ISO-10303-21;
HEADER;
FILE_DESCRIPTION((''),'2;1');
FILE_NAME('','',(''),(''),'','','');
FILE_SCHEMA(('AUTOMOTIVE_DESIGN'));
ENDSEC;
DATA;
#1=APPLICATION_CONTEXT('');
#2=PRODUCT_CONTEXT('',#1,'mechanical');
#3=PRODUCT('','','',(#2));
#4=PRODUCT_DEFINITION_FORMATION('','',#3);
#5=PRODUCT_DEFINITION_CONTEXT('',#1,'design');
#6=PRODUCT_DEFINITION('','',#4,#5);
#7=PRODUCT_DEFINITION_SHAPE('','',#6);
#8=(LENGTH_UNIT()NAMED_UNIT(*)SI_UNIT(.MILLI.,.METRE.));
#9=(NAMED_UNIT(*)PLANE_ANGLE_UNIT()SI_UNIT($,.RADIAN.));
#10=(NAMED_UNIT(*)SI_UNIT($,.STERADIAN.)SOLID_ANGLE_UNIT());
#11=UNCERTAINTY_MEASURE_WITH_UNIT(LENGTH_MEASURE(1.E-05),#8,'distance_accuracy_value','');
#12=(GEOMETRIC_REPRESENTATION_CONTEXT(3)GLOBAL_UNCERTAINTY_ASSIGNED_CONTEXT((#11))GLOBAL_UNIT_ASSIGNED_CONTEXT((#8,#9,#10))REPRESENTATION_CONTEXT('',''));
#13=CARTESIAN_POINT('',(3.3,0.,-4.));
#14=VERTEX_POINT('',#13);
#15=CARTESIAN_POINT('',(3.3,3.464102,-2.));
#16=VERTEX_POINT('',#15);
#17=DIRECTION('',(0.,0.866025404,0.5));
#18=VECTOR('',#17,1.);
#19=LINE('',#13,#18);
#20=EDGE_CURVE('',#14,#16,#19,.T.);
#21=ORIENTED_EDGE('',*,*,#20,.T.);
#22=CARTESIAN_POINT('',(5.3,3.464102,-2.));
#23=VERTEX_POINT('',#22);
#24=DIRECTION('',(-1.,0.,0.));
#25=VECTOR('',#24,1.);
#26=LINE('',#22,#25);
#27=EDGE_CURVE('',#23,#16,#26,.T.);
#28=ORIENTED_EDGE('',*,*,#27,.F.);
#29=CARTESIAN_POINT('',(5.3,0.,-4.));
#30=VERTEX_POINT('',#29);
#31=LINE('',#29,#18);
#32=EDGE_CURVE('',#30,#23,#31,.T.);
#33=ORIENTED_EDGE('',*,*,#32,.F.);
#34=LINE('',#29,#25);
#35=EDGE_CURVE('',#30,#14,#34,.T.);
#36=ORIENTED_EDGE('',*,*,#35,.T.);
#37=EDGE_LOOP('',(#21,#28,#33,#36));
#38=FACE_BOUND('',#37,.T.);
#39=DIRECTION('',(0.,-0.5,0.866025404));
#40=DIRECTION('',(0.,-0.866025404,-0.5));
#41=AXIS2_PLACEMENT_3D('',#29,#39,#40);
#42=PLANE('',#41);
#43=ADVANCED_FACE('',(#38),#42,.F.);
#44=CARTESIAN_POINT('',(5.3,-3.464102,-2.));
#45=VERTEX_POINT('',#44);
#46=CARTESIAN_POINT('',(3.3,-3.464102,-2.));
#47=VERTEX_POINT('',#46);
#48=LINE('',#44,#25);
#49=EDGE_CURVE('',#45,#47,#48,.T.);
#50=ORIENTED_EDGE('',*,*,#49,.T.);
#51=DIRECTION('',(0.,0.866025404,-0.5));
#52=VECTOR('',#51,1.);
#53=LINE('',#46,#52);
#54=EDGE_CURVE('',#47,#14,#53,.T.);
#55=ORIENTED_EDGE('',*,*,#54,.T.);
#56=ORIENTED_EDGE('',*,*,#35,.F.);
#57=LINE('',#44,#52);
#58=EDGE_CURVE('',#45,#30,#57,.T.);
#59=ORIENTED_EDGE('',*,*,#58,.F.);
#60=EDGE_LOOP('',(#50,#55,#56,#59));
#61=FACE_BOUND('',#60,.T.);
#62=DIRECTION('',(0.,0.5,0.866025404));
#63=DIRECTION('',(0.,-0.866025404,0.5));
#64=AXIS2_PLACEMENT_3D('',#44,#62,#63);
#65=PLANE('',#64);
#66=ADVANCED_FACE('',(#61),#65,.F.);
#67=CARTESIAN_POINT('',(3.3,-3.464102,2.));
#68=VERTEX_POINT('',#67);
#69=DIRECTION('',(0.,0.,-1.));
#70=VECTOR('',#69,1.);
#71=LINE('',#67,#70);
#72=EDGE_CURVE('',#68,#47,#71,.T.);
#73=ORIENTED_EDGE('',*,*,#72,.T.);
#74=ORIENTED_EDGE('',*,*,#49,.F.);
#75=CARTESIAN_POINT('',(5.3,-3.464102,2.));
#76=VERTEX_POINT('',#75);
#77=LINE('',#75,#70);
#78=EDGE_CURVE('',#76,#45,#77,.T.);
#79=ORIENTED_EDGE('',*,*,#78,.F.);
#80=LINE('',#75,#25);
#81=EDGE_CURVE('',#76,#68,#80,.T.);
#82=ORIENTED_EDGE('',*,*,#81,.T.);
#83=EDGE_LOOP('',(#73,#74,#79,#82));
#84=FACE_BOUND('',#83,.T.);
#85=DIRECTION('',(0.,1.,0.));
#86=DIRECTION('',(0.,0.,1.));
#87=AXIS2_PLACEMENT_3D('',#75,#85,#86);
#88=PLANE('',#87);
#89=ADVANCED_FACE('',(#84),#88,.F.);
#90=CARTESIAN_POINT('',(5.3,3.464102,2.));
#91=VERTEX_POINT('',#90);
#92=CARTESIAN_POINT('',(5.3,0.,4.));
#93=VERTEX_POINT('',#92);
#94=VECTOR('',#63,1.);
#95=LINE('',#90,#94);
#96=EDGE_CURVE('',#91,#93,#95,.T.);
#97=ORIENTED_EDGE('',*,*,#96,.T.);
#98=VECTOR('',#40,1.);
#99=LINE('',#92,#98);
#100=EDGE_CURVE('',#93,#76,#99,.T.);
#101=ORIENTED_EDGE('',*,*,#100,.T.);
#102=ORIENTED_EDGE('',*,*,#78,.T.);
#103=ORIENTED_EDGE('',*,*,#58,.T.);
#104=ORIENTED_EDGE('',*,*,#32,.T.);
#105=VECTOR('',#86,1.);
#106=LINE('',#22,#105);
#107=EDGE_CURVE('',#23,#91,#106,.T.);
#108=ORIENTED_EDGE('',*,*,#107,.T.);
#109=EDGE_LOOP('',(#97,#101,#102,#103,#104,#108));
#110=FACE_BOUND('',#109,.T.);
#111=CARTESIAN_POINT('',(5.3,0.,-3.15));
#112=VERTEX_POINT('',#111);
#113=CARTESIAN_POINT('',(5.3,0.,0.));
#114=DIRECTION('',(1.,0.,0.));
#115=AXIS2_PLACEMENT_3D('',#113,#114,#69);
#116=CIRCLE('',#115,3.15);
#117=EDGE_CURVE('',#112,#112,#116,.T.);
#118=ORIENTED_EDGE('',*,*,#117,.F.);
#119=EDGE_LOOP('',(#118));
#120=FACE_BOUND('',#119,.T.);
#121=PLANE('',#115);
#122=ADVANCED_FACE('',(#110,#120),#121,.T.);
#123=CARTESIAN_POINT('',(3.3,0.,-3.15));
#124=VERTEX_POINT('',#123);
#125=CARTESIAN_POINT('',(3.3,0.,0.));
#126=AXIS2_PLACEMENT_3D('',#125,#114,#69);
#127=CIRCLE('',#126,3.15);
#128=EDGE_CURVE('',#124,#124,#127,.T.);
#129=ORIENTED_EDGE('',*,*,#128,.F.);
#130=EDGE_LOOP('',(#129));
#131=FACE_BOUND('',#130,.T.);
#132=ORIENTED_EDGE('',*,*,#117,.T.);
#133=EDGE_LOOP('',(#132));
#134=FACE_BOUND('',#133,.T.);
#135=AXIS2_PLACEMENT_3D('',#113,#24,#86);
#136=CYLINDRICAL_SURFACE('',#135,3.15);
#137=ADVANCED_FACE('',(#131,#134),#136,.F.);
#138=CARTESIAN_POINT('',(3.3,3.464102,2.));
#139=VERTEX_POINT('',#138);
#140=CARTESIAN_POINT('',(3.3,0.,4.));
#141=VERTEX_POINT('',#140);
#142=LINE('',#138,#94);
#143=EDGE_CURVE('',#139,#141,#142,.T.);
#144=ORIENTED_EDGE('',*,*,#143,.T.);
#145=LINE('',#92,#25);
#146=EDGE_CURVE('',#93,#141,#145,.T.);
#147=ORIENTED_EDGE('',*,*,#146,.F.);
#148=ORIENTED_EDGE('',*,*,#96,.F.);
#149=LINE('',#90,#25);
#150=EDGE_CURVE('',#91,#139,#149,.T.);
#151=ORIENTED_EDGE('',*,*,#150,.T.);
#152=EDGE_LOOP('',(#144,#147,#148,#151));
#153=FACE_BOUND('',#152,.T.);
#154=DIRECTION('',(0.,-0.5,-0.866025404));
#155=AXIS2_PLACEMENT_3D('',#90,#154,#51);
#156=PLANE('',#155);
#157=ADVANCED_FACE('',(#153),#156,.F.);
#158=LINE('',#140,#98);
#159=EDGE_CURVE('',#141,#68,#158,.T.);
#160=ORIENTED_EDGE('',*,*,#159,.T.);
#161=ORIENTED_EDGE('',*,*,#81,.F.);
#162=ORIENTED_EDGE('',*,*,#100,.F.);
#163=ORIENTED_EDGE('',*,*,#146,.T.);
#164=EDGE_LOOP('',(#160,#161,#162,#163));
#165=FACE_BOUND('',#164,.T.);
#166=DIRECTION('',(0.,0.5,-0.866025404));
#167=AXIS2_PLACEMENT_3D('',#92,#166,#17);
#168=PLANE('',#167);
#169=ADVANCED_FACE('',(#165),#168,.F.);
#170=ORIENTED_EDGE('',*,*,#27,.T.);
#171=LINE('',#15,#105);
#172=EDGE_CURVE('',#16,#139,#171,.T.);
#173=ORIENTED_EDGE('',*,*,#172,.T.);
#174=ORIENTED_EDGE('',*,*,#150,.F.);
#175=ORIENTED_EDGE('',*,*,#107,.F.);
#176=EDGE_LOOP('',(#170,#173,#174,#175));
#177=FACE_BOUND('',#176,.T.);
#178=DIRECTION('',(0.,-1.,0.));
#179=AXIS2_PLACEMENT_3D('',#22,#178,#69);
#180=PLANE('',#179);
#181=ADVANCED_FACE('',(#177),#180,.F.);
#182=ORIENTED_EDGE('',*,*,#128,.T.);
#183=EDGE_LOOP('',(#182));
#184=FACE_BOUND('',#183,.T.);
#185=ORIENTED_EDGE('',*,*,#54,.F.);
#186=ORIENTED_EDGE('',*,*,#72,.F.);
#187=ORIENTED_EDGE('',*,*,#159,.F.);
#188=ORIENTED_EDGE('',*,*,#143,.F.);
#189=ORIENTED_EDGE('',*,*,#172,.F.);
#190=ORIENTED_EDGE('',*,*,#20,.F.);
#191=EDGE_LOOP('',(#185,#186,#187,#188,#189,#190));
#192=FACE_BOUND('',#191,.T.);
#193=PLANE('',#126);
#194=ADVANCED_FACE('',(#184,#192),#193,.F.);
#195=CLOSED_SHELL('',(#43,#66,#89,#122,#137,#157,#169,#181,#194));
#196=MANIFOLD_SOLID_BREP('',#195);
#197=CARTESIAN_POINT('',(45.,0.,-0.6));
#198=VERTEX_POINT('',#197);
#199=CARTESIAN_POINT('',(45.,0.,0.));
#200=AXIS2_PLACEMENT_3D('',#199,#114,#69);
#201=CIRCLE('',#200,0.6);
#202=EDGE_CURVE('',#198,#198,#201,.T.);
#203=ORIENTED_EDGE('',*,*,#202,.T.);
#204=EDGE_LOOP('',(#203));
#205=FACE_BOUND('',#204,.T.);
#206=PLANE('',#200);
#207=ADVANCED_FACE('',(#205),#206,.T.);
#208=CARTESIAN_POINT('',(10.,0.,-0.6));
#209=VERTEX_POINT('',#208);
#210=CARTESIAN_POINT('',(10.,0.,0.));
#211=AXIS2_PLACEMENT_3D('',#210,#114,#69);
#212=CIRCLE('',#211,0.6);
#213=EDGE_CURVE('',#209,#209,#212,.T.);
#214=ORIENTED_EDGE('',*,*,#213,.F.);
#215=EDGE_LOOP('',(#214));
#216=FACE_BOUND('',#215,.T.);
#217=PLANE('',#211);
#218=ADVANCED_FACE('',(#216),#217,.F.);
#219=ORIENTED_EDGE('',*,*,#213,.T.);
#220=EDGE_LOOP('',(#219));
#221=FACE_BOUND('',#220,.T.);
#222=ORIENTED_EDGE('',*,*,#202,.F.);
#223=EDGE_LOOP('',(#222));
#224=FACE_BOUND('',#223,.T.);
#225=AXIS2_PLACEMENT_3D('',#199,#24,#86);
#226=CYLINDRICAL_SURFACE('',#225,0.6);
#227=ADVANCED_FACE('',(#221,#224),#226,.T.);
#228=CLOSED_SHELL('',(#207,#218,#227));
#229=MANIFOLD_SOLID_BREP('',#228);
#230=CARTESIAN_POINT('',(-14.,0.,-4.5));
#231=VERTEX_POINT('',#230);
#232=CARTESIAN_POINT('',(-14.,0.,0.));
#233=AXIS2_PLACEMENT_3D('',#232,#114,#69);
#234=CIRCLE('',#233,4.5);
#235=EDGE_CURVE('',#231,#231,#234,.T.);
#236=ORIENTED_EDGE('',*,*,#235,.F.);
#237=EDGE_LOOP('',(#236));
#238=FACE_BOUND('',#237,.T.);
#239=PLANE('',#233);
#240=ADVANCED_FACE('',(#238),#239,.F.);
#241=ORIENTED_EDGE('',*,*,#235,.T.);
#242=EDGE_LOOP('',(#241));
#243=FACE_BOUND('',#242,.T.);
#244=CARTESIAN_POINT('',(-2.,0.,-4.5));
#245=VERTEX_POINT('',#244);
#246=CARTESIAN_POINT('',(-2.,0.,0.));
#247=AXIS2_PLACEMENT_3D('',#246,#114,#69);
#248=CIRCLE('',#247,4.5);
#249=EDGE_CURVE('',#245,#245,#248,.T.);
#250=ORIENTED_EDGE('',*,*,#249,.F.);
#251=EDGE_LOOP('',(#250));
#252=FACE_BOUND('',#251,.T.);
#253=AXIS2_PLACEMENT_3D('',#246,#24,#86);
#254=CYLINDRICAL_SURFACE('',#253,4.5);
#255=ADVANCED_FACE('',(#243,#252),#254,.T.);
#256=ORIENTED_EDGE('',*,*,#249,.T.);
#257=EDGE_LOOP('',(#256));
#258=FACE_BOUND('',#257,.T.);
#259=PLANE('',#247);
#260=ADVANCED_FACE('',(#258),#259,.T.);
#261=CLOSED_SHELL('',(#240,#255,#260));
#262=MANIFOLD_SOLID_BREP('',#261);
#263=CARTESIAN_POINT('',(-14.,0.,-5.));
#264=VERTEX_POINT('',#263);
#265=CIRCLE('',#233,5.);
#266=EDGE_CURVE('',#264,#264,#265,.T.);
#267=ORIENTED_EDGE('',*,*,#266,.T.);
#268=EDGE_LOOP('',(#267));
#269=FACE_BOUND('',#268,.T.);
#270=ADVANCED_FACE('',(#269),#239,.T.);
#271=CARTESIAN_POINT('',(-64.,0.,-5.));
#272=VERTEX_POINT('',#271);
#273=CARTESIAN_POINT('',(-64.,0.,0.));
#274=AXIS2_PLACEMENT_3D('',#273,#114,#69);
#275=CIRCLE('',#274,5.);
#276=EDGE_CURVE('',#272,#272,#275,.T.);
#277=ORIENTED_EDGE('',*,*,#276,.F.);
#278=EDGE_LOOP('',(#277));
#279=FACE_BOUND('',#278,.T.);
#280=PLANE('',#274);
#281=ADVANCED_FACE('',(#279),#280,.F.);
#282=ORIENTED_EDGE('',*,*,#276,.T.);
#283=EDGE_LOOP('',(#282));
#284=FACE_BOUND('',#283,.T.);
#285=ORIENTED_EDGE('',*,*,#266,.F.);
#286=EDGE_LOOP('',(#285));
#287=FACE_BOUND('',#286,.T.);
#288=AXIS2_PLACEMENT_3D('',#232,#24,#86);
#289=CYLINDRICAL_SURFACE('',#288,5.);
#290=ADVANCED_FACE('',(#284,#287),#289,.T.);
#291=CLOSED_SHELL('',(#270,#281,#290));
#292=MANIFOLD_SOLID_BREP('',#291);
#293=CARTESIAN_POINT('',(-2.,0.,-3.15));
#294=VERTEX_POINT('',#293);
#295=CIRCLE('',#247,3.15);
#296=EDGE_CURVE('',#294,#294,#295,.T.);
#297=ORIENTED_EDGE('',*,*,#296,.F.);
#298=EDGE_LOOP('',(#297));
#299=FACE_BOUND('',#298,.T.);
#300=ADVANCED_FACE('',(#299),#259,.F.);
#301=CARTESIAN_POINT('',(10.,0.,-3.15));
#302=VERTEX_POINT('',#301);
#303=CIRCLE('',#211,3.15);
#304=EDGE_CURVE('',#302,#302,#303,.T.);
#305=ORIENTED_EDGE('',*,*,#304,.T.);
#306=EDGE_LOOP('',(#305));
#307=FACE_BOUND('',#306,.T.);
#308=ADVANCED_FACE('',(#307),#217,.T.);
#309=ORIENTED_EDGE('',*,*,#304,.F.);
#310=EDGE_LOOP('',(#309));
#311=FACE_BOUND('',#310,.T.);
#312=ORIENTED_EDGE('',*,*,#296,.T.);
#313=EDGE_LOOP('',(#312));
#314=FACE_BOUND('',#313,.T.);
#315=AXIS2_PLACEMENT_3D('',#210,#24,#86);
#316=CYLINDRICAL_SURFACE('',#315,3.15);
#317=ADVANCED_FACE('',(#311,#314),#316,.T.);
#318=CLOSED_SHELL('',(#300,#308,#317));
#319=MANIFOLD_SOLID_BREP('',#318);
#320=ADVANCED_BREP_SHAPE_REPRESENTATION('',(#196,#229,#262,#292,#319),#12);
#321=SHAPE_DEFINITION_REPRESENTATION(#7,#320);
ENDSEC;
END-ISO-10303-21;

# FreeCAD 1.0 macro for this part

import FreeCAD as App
import Part
import Sketcher

V = App.Vector
Q = App.Units.Quantity

doc = App.newDocument("Part")
body = doc.addObject("PartDesign::Body", "Body")

# Sketch on YZ plane
sketch1 = body.newObject("Sketcher::SketchObject", "Sketch")
sketch1.AttachmentSupport = (doc.getObject("YZ_Plane"), [""])
sketch1.MapMode = "FlatFace"
sketch1.AttachmentOffset = App.Placement(V(0, 0, -2), App.Rotation())
sketch1.addGeometry(Part.Circle(V(0, 0, 0), V(0, 0, 1), 3.15), False)
sketch1.addConstraint([
    Sketcher.Constraint("Coincident", 0, 3, -1, 1),
    Sketcher.Constraint("Diameter", 0, Q("6.3 mm")),
])
pad1 = body.newObject("PartDesign::Pad", "Pad")
pad1.Profile = sketch1
pad1.Length = 12
body2 = doc.addObject("PartDesign::Body", "Body001")

# Sketch on YZ plane
sketch2 = body2.newObject("Sketcher::SketchObject", "Sketch001")
sketch2.AttachmentSupport = (doc.getObject("YZ_Plane001"), [""])
sketch2.MapMode = "FlatFace"
sketch2.AttachmentOffset = App.Placement(V(0, 0, 3.3), App.Rotation())
sketch2.addGeometry([
    Part.LineSegment(V(0, -4, 0), V(3.464102, -2, 0)),  # 0
    Part.LineSegment(V(3.464102, -2, 0), V(3.464102, 2, 0)),  # 1
    Part.LineSegment(V(3.464102, 2, 0), V(0, 4, 0)),  # 2
    Part.LineSegment(V(0, 4, 0), V(-3.464102, 2, 0)),  # 3
    Part.LineSegment(V(-3.464102, 2, 0), V(-3.464102, -2, 0)),  # 4
    Part.LineSegment(V(-3.464102, -2, 0), V(0, -4, 0)),  # 5
    Part.Circle(V(0, 0, 0), V(0, 0, 1), 3.15),  # 6
], False)
sketch2.addConstraint([
    Sketcher.Constraint("Coincident", 0, 2, 1, 1),
    Sketcher.Constraint("Coincident", 1, 2, 2, 1),
    Sketcher.Constraint("Coincident", 2, 2, 3, 1),
    Sketcher.Constraint("Coincident", 3, 2, 4, 1),
    Sketcher.Constraint("Coincident", 4, 2, 5, 1),
    Sketcher.Constraint("Coincident", 5, 2, 0, 1),
    Sketcher.Constraint("Vertical", 1),
    Sketcher.Constraint("Vertical", 4),
    Sketcher.Constraint("Coincident", 6, 3, -1, 1),
    Sketcher.Constraint("Symmetric", 0, 2, 3, 2, -1, 1),
    Sketcher.Constraint("Symmetric", 2, 2, 5, 2, -1, 1),
    Sketcher.Constraint("PointOnObject", 2, 2, -2),
    Sketcher.Constraint("Parallel", 2, 5),
    Sketcher.Constraint("Horizontal", 1, 2, 3, 2),
    Sketcher.Constraint("Diameter", 6, Q("6.3 mm")),
    Sketcher.Constraint("DistanceY", 1, 1, 1, 2, Q("4 mm")),
    Sketcher.Constraint("Angle", 0, Q("30 deg")),
    Sketcher.Constraint("Distance", 0, Q("4 mm")),
])
pad2 = body2.newObject("PartDesign::Pad", "Pad001")
pad2.Profile = sketch2
pad2.Length = 2
body3 = doc.addObject("PartDesign::Body", "Body002")

# Sketch on YZ plane
sketch3 = body3.newObject("Sketcher::SketchObject", "Sketch002")
sketch3.AttachmentSupport = (doc.getObject("YZ_Plane002"), [""])
sketch3.MapMode = "FlatFace"
sketch3.AttachmentOffset = App.Placement(V(0, 0, -14), App.Rotation())
sketch3.addGeometry(Part.Circle(V(0, 0, 0), V(0, 0, 1), 4.5), False)
sketch3.addConstraint([
    Sketcher.Constraint("Coincident", 0, 3, -1, 1),
    Sketcher.Constraint("Diameter", 0, Q("9 mm")),
])
pad3 = body3.newObject("PartDesign::Pad", "Pad002")
pad3.Profile = sketch3
pad3.Length = 12
body4 = doc.addObject("PartDesign::Body", "Body003")

# Sketch on YZ plane
sketch4 = body4.newObject("Sketcher::SketchObject", "Sketch003")
sketch4.AttachmentSupport = (doc.getObject("YZ_Plane003"), [""])
sketch4.MapMode = "FlatFace"
sketch4.AttachmentOffset = App.Placement(V(0, 0, -64), App.Rotation())
sketch4.addGeometry(Part.Circle(V(0, 0, 0), V(0, 0, 1), 5), False)
sketch4.addConstraint([
    Sketcher.Constraint("Coincident", 0, 3, -1, 1),
    Sketcher.Constraint("Diameter", 0, Q("10 mm")),
])
pad4 = body4.newObject("PartDesign::Pad", "Pad003")
pad4.Profile = sketch4
pad4.Length = 50
body5 = doc.addObject("PartDesign::Body", "Body004")

# Sketch on YZ plane
sketch5 = body5.newObject("Sketcher::SketchObject", "Sketch004")
sketch5.AttachmentSupport = (doc.getObject("YZ_Plane004"), [""])
sketch5.MapMode = "FlatFace"
sketch5.AttachmentOffset = App.Placement(V(0, 0, 10), App.Rotation())
sketch5.addGeometry(Part.Circle(V(0, 0, 0), V(0, 0, 1), 0.6), False)
sketch5.addConstraint([
    Sketcher.Constraint("Coincident", 0, 3, -1, 1),
    Sketcher.Constraint("Diameter", 0, Q("1.2 mm")),
])
pad5 = body5.newObject("PartDesign::Pad", "Pad004")
pad5.Profile = sketch5
pad5.Length = 35

doc.recompute()
